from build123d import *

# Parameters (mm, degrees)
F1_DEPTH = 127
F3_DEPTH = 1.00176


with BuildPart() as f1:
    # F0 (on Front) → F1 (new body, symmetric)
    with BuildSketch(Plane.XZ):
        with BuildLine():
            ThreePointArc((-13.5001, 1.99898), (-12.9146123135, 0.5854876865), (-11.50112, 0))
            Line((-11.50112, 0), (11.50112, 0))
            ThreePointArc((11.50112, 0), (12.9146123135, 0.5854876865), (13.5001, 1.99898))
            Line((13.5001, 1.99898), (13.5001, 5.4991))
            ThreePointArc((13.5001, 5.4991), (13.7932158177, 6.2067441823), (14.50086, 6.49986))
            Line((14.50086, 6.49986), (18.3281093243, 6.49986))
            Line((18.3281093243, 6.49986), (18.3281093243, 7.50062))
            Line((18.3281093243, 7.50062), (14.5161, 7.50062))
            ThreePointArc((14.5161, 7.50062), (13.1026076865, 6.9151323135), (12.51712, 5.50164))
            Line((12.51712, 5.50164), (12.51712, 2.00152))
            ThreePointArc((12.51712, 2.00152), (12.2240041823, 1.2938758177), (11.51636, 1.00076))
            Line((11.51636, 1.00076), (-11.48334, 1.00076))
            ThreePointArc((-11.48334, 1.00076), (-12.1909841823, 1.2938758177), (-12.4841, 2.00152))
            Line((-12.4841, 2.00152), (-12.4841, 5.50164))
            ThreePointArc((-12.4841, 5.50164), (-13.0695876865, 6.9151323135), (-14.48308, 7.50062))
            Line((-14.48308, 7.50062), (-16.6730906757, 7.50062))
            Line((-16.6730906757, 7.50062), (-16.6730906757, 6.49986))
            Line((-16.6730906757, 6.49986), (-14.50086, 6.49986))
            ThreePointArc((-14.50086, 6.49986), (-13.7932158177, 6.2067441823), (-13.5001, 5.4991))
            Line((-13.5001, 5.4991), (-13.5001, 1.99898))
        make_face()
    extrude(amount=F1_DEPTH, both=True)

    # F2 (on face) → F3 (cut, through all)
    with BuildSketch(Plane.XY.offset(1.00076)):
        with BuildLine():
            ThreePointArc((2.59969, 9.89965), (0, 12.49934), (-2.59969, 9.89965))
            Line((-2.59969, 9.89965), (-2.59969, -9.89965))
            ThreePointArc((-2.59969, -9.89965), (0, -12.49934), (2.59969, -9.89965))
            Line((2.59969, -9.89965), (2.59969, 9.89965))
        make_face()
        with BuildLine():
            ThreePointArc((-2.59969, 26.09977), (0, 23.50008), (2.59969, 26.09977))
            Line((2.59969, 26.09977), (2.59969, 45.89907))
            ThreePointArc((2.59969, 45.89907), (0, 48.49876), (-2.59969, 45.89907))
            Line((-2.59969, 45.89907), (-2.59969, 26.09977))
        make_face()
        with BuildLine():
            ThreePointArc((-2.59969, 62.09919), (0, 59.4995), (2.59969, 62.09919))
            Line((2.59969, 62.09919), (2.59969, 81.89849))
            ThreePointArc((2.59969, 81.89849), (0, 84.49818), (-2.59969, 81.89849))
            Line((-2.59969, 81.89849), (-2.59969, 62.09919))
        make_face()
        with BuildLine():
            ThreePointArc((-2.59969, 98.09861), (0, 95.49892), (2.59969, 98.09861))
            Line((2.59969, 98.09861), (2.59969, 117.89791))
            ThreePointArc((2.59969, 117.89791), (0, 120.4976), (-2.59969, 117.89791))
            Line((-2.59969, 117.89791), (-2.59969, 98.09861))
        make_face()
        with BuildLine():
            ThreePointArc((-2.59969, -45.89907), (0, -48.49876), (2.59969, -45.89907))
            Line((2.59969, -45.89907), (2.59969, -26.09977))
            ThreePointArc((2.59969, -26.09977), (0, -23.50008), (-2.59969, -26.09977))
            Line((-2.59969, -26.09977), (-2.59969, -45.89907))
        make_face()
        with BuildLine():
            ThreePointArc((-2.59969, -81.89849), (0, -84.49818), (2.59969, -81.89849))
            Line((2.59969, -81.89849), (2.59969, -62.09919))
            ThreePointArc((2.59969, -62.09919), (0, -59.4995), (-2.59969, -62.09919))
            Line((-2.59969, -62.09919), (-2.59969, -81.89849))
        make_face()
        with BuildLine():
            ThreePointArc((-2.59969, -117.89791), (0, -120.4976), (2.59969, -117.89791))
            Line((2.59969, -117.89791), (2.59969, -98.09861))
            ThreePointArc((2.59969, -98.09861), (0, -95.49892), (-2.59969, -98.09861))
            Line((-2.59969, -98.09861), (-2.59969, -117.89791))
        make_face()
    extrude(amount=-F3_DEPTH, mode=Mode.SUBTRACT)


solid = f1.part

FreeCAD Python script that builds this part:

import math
import FreeCAD as App
import Part
import Sketcher
from FreeCAD import Vector
Q = App.Units.Quantity

doc = App.newDocument("Part")
params = doc.addObject("Spreadsheet::Sheet", "Params")
for row, (alias, value) in enumerate([
    ("pad1_length", "10 in"),
], start=1):
    params.set(f"A{row}", alias)
    params.set(f"B{row}", "=" + value)
    params.setAlias(f"B{row}", alias)

body = doc.addObject("PartDesign::Body", "Body")

sketch1 = body.newObject("Sketcher::SketchObject", "Sketch")
sketch1.AttachmentSupport = (doc.getObject("XZ_Plane"), [""])
sketch1.MapMode = "FlatFace"
sketch1.addGeometry(Part.ArcOfCircle(Part.Circle(Vector(-11.50112, 1.99898, 0), Vector(0, 0, 1), 1.99898), math.radians(180), math.radians(270)), False)
sketch1.addGeometry(Part.LineSegment(Vector(-11.50112, 0, 0), Vector(11.50112, 0, 0)), False)
sketch1.addGeometry(Part.ArcOfCircle(Part.Circle(Vector(11.50112, 1.99898, 0), Vector(0, 0, 1), 1.99898), math.radians(-90), math.radians(0)), False)
sketch1.addGeometry(Part.LineSegment(Vector(13.5001, 1.99898, 0), Vector(13.5001, 5.4991, 0)), False)
sketch1.addGeometry(Part.ArcOfCircle(Part.Circle(Vector(14.50086, 5.4991, 0), Vector(0, 0, 1), 1.00076), math.radians(90), math.radians(180)), False)
sketch1.addGeometry(Part.LineSegment(Vector(14.50086, 6.49986, 0), Vector(18.328109, 6.49986, 0)), False)
sketch1.addGeometry(Part.LineSegment(Vector(18.328109, 6.49986, 0), Vector(18.328109, 7.50062, 0)), False)
sketch1.addGeometry(Part.LineSegment(Vector(18.328109, 7.50062, 0), Vector(14.5161, 7.50062, 0)), False)
sketch1.addGeometry(Part.ArcOfCircle(Part.Circle(Vector(14.5161, 5.50164, 0), Vector(0, 0, 1), 1.99898), math.radians(90), math.radians(180)), False)
sketch1.addGeometry(Part.LineSegment(Vector(12.51712, 5.50164, 0), Vector(12.51712, 2.00152, 0)), False)
sketch1.addGeometry(Part.ArcOfCircle(Part.Circle(Vector(11.51636, 2.00152, 0), Vector(0, 0, 1), 1.00076), math.radians(-90), math.radians(0)), False)
sketch1.addGeometry(Part.LineSegment(Vector(11.51636, 1.00076, 0), Vector(-11.48334, 1.00076, 0)), False)
sketch1.addGeometry(Part.ArcOfCircle(Part.Circle(Vector(-11.48334, 2.00152, 0), Vector(0, 0, 1), 1.00076), math.radians(180), math.radians(270)), False)
sketch1.addGeometry(Part.LineSegment(Vector(-12.4841, 2.00152, 0), Vector(-12.4841, 5.50164, 0)), False)
sketch1.addGeometry(Part.ArcOfCircle(Part.Circle(Vector(-14.48308, 5.50164, 0), Vector(0, 0, 1), 1.99898), math.radians(0), math.radians(90)), False)
sketch1.addGeometry(Part.LineSegment(Vector(-14.48308, 7.50062, 0), Vector(-16.673091, 7.50062, 0)), False)
sketch1.addGeometry(Part.LineSegment(Vector(-16.673091, 7.50062, 0), Vector(-16.673091, 6.49986, 0)), False)
sketch1.addGeometry(Part.LineSegment(Vector(-16.673091, 6.49986, 0), Vector(-14.50086, 6.49986, 0)), False)
sketch1.addGeometry(Part.ArcOfCircle(Part.Circle(Vector(-14.50086, 5.4991, 0), Vector(0, 0, 1), 1.00076), math.radians(0), math.radians(90)), False)
sketch1.addGeometry(Part.LineSegment(Vector(-13.5001, 5.4991, 0), Vector(-13.5001, 1.99898, 0)), False)
sketch1.addConstraint(Sketcher.Constraint("Tangent", 0, 2, 1, 1))
sketch1.addConstraint(Sketcher.Constraint("Tangent", 1, 2, 2, 1))
sketch1.addConstraint(Sketcher.Constraint("Tangent", 2, 2, 3, 1))
sketch1.addConstraint(Sketcher.Constraint("Tangent", 3, 2, 4, 2))
sketch1.addConstraint(Sketcher.Constraint("Tangent", 4, 1, 5, 1))
sketch1.addConstraint(Sketcher.Constraint("Coincident", 5, 2, 6, 1))
sketch1.addConstraint(Sketcher.Constraint("Coincident", 6, 2, 7, 1))
sketch1.addConstraint(Sketcher.Constraint("Tangent", 7, 2, 8, 1))
sketch1.addConstraint(Sketcher.Constraint("Tangent", 8, 2, 9, 1))
sketch1.addConstraint(Sketcher.Constraint("Tangent", 9, 2, 10, 2))
sketch1.addConstraint(Sketcher.Constraint("Tangent", 10, 1, 11, 1))
sketch1.addConstraint(Sketcher.Constraint("Tangent", 11, 2, 12, 2))
sketch1.addConstraint(Sketcher.Constraint("Tangent", 12, 1, 13, 1))
sketch1.addConstraint(Sketcher.Constraint("Tangent", 13, 2, 14, 1))
sketch1.addConstraint(Sketcher.Constraint("Tangent", 14, 2, 15, 1))
sketch1.addConstraint(Sketcher.Constraint("Coincident", 15, 2, 16, 1))
sketch1.addConstraint(Sketcher.Constraint("Coincident", 16, 2, 17, 1))
sketch1.addConstraint(Sketcher.Constraint("Tangent", 17, 2, 18, 2))
sketch1.addConstraint(Sketcher.Constraint("Tangent", 18, 1, 19, 1))
sketch1.addConstraint(Sketcher.Constraint("Tangent", 19, 2, 0, 1))
sketch1.addConstraint(Sketcher.Constraint("Horizontal", 1))
sketch1.addConstraint(Sketcher.Constraint("Vertical", 3))
sketch1.addConstraint(Sketcher.Constraint("Horizontal", 5))
sketch1.addConstraint(Sketcher.Constraint("Vertical", 6))
sketch1.addConstraint(Sketcher.Constraint("Horizontal", 7))
sketch1.addConstraint(Sketcher.Constraint("Vertical", 9))
sketch1.addConstraint(Sketcher.Constraint("Horizontal", 11))
sketch1.addConstraint(Sketcher.Constraint("Vertical", 13))
sketch1.addConstraint(Sketcher.Constraint("Horizontal", 15))
sketch1.addConstraint(Sketcher.Constraint("Vertical", 16))
sketch1.addConstraint(Sketcher.Constraint("Horizontal", 17))
sketch1.addConstraint(Sketcher.Constraint("Vertical", 19))
sketch1.addConstraint(Sketcher.Constraint("Equal", 0, 2))
sketch1.addConstraint(Sketcher.Constraint("Equal", 2, 8))
sketch1.addConstraint(Sketcher.Constraint("Equal", 4, 10))
sketch1.addConstraint(Sketcher.Constraint("Equal", 10, 12))
sketch1.addConstraint(Sketcher.Constraint("Equal", 8, 14))
sketch1.addConstraint(Sketcher.Constraint("Equal", 12, 18))
sketch1.addConstraint(Sketcher.Constraint("Symmetric", 0, 2, 1, 2, -1, 1))
sketch1.addConstraint(Sketcher.Constraint("Horizontal", 8, 3, 14, 3))
sketch1.addConstraint(Sketcher.Constraint("Horizontal", 4, 3, 18, 3))
sketch1.addConstraint(Sketcher.Constraint("Equal", 3, 9))
sketch1.addConstraint(Sketcher.Constraint("Radius", 0, Q("0.0787 in")))
sketch1.addConstraint(Sketcher.Constraint("Radius", 4, Q("0.0394 in")))
sketch1.addConstraint(Sketcher.Constraint("DistanceX", 2, 2, 8, 3, Q("0.04 in")))
sketch1.addConstraint(Sketcher.Constraint("DistanceX", 18, 1, 13, 2, Q("0.04 in")))
sketch1.addConstraint(Sketcher.Constraint("DistanceX", 1, 1, 1, 2, Q("0.9056 in")))
sketch1.addConstraint(Sketcher.Constraint("DistanceY", 3, 1, 3, 2, Q("0.1378 in")))
sketch1.addConstraint(Sketcher.Constraint("DistanceY", 6, 1, 6, 2, Q("0.0394 in")))
sketch1.addConstraint(Sketcher.Constraint("DistanceX", 5, 1, 5, 2, Q("3.827249 mm")))
sketch1.addConstraint(Sketcher.Constraint("DistanceX", 15, 2, 15, 1, Q("2.190011 mm")))
pad1 = body.newObject("PartDesign::Pad", "Pad")
pad1.Profile = sketch1
pad1.setExpression("Length", "Params.pad1_length")
pad1.Midplane = True

sketch2 = body.newObject("Sketcher::SketchObject", "Sketch001")
sketch2.AttachmentSupport = (doc.getObject("XY_Plane"), [""])
sketch2.MapMode = "FlatFace"
sketch2.AttachmentOffset = App.Placement(Vector(0, 0, 0.0394 * 25.4), App.Rotation())
sketch2.addGeometry(Part.ArcOfCircle(Part.Circle(Vector(0, 9.89965, 0), Vector(0, 0, 1), 2.59969), math.radians(0), math.radians(180)), False)
sketch2.addGeometry(Part.LineSegment(Vector(-2.59969, 9.89965, 0), Vector(-2.59969, -9.89965, 0)), False)
sketch2.addGeometry(Part.ArcOfCircle(Part.Circle(Vector(0, -9.89965, 0), Vector(0, 0, 1), 2.59969), math.radians(180), math.radians(360)), False)
sketch2.addGeometry(Part.LineSegment(Vector(2.59969, -9.89965, 0), Vector(2.59969, 9.89965, 0)), False)
sketch2.addGeometry(Part.ArcOfCircle(Part.Circle(Vector(0, 26.09977, 0), Vector(0, 0, 1), 2.59969), math.radians(180), math.radians(360)), False)
sketch2.addGeometry(Part.LineSegment(Vector(2.59969, 26.09977, 0), Vector(2.59969, 45.89907, 0)), False)
sketch2.addGeometry(Part.ArcOfCircle(Part.Circle(Vector(0, 45.89907, 0), Vector(0, 0, 1), 2.59969), math.radians(0), math.radians(180)), False)
sketch2.addGeometry(Part.LineSegment(Vector(-2.59969, 45.89907, 0), Vector(-2.59969, 26.09977, 0)), False)
sketch2.addGeometry(Part.ArcOfCircle(Part.Circle(Vector(0, 62.09919, 0), Vector(0, 0, 1), 2.59969), math.radians(180), math.radians(360)), False)
sketch2.addGeometry(Part.LineSegment(Vector(2.59969, 62.09919, 0), Vector(2.59969, 81.89849, 0)), False)
sketch2.addGeometry(Part.ArcOfCircle(Part.Circle(Vector(0, 81.89849, 0), Vector(0, 0, 1), 2.59969), math.radians(0), math.radians(180)), False)
sketch2.addGeometry(Part.LineSegment(Vector(-2.59969, 81.89849, 0), Vector(-2.59969, 62.09919, 0)), False)
sketch2.addGeometry(Part.ArcOfCircle(Part.Circle(Vector(0, 98.09861, 0), Vector(0, 0, 1), 2.59969), math.radians(180), math.radians(360)), False)
sketch2.addGeometry(Part.LineSegment(Vector(2.59969, 98.09861, 0), Vector(2.59969, 117.89791, 0)), False)
sketch2.addGeometry(Part.ArcOfCircle(Part.Circle(Vector(0, 117.89791, 0), Vector(0, 0, 1), 2.59969), math.radians(0), math.radians(180)), False)
sketch2.addGeometry(Part.LineSegment(Vector(-2.59969, 117.89791, 0), Vector(-2.59969, 98.09861, 0)), False)
sketch2.addGeometry(Part.ArcOfCircle(Part.Circle(Vector(0, -45.89907, 0), Vector(0, 0, 1), 2.59969), math.radians(180), math.radians(360)), False)
sketch2.addGeometry(Part.LineSegment(Vector(2.59969, -45.89907, 0), Vector(2.59969, -26.09977, 0)), False)
sketch2.addGeometry(Part.ArcOfCircle(Part.Circle(Vector(0, -26.09977, 0), Vector(0, 0, 1), 2.59969), math.radians(0), math.radians(180)), False)
sketch2.addGeometry(Part.LineSegment(Vector(-2.59969, -26.09977, 0), Vector(-2.59969, -45.89907, 0)), False)
sketch2.addGeometry(Part.ArcOfCircle(Part.Circle(Vector(0, -81.89849, 0), Vector(0, 0, 1), 2.59969), math.radians(180), math.radians(360)), False)
sketch2.addGeometry(Part.LineSegment(Vector(2.59969, -81.89849, 0), Vector(2.59969, -62.09919, 0)), False)
sketch2.addGeometry(Part.ArcOfCircle(Part.Circle(Vector(0, -62.09919, 0), Vector(0, 0, 1), 2.59969), math.radians(0), math.radians(180)), False)
sketch2.addGeometry(Part.LineSegment(Vector(-2.59969, -62.09919, 0), Vector(-2.59969, -81.89849, 0)), False)
sketch2.addGeometry(Part.ArcOfCircle(Part.Circle(Vector(0, -117.89791, 0), Vector(0, 0, 1), 2.59969), math.radians(180), math.radians(360)), False)
sketch2.addGeometry(Part.LineSegment(Vector(2.59969, -117.89791, 0), Vector(2.59969, -98.09861, 0)), False)
sketch2.addGeometry(Part.ArcOfCircle(Part.Circle(Vector(0, -98.09861, 0), Vector(0, 0, 1), 2.59969), math.radians(0), math.radians(180)), False)
sketch2.addGeometry(Part.LineSegment(Vector(-2.59969, -98.09861, 0), Vector(-2.59969, -117.89791, 0)), False)
sketch2.addConstraint(Sketcher.Constraint("Tangent", 0, 2, 1, 1))
sketch2.addConstraint(Sketcher.Constraint("Tangent", 1, 2, 2, 1))
sketch2.addConstraint(Sketcher.Constraint("Tangent", 2, 2, 3, 1))
sketch2.addConstraint(Sketcher.Constraint("Tangent", 3, 2, 0, 1))
sketch2.addConstraint(Sketcher.Constraint("Tangent", 4, 2, 5, 1))
sketch2.addConstraint(Sketcher.Constraint("Tangent", 5, 2, 6, 1))
sketch2.addConstraint(Sketcher.Constraint("Tangent", 6, 2, 7, 1))
sketch2.addConstraint(Sketcher.Constraint("Tangent", 7, 2, 4, 1))
sketch2.addConstraint(Sketcher.Constraint("Tangent", 8, 2, 9, 1))
sketch2.addConstraint(Sketcher.Constraint("Tangent", 9, 2, 10, 1))
sketch2.addConstraint(Sketcher.Constraint("Tangent", 10, 2, 11, 1))
sketch2.addConstraint(Sketcher.Constraint("Tangent", 11, 2, 8, 1))
sketch2.addConstraint(Sketcher.Constraint("Tangent", 12, 2, 13, 1))
sketch2.addConstraint(Sketcher.Constraint("Tangent", 13, 2, 14, 1))
sketch2.addConstraint(Sketcher.Constraint("Tangent", 14, 2, 15, 1))
sketch2.addConstraint(Sketcher.Constraint("Tangent", 15, 2, 12, 1))
sketch2.addConstraint(Sketcher.Constraint("Tangent", 16, 2, 17, 1))
sketch2.addConstraint(Sketcher.Constraint("Tangent", 17, 2, 18, 1))
sketch2.addConstraint(Sketcher.Constraint("Tangent", 18, 2, 19, 1))
sketch2.addConstraint(Sketcher.Constraint("Tangent", 19, 2, 16, 1))
sketch2.addConstraint(Sketcher.Constraint("Tangent", 20, 2, 21, 1))
sketch2.addConstraint(Sketcher.Constraint("Tangent", 21, 2, 22, 1))
sketch2.addConstraint(Sketcher.Constraint("Tangent", 22, 2, 23, 1))
sketch2.addConstraint(Sketcher.Constraint("Tangent", 23, 2, 20, 1))
sketch2.addConstraint(Sketcher.Constraint("Tangent", 24, 2, 25, 1))
sketch2.addConstraint(Sketcher.Constraint("Tangent", 25, 2, 26, 1))
sketch2.addConstraint(Sketcher.Constraint("Tangent", 26, 2, 27, 1))
sketch2.addConstraint(Sketcher.Constraint("Tangent", 27, 2, 24, 1))
sketch2.addConstraint(Sketcher.Constraint("Vertical", 1))
sketch2.addConstraint(Sketcher.Constraint("Vertical", 3))
sketch2.addConstraint(Sketcher.Constraint("Vertical", 5))
sketch2.addConstraint(Sketcher.Constraint("Vertical", 7))
sketch2.addConstraint(Sketcher.Constraint("Vertical", 9))
sketch2.addConstraint(Sketcher.Constraint("Vertical", 11))
sketch2.addConstraint(Sketcher.Constraint("Vertical", 13))
sketch2.addConstraint(Sketcher.Constraint("Vertical", 15))
sketch2.addConstraint(Sketcher.Constraint("Vertical", 17))
sketch2.addConstraint(Sketcher.Constraint("Vertical", 19))
sketch2.addConstraint(Sketcher.Constraint("Vertical", 21))
sketch2.addConstraint(Sketcher.Constraint("Vertical", 23))
sketch2.addConstraint(Sketcher.Constraint("Vertical", 25))
sketch2.addConstraint(Sketcher.Constraint("Vertical", 27))
sketch2.addConstraint(Sketcher.Constraint("Equal", 2, 4))
sketch2.addConstraint(Sketcher.Constraint("Equal", 6, 8))
sketch2.addConstraint(Sketcher.Constraint("Equal", 10, 12))
sketch2.addConstraint(Sketcher.Constraint("Equal", 14, 16))
sketch2.addConstraint(Sketcher.Constraint("Equal", 18, 20))
sketch2.addConstraint(Sketcher.Constraint("Equal", 22, 24))
sketch2.addConstraint(Sketcher.Constraint("Symmetric", 0, 3, 2, 3, -1, 1))
sketch2.addConstraint(Sketcher.Constraint("Symmetric", 6, 3, 16, 3, -1, 1))
sketch2.addConstraint(Sketcher.Constraint("Symmetric", 10, 3, 20, 3, -1, 1))
sketch2.addConstraint(Sketcher.Constraint("Symmetric", 14, 3, 24, 3, -1, 1))
sketch2.addConstraint(Sketcher.Constraint("Symmetric", 4, 3, 18, 3, -1))
sketch2.addConstraint(Sketcher.Constraint("Symmetric", 8, 3, 22, 3, -1))
sketch2.addConstraint(Sketcher.Constraint("Symmetric", 12, 3, 26, 3, -1))
sketch2.addConstraint(Sketcher.Constraint("Equal", 3, 5))
sketch2.addConstraint(Sketcher.Constraint("Equal", 7, 9))
sketch2.addConstraint(Sketcher.Constraint("Equal", 11, 13))
sketch2.addConstraint(Sketcher.Constraint("DistanceY", 1, 2, 1, 1, Q("0.7795 in")))
sketch2.addConstraint(Sketcher.Constraint("Radius", 0, Q("2.59969 mm")))
sketch2.addConstraint(Sketcher.Constraint("DistanceY", 0, 3, 4, 3, Q("0.6378 in")))
sketch2.addConstraint(Sketcher.Constraint("DistanceY", 6, 3, 8, 3, Q("0.6378 in")))
sketch2.addConstraint(Sketcher.Constraint("DistanceY", 10, 3, 12, 3, Q("0.6378 in")))
pocket1 = body.newObject("PartDesign::Pocket", "Pocket")
pocket1.Profile = sketch2
pocket1.Type = "ThroughAll"

doc.recompute()
